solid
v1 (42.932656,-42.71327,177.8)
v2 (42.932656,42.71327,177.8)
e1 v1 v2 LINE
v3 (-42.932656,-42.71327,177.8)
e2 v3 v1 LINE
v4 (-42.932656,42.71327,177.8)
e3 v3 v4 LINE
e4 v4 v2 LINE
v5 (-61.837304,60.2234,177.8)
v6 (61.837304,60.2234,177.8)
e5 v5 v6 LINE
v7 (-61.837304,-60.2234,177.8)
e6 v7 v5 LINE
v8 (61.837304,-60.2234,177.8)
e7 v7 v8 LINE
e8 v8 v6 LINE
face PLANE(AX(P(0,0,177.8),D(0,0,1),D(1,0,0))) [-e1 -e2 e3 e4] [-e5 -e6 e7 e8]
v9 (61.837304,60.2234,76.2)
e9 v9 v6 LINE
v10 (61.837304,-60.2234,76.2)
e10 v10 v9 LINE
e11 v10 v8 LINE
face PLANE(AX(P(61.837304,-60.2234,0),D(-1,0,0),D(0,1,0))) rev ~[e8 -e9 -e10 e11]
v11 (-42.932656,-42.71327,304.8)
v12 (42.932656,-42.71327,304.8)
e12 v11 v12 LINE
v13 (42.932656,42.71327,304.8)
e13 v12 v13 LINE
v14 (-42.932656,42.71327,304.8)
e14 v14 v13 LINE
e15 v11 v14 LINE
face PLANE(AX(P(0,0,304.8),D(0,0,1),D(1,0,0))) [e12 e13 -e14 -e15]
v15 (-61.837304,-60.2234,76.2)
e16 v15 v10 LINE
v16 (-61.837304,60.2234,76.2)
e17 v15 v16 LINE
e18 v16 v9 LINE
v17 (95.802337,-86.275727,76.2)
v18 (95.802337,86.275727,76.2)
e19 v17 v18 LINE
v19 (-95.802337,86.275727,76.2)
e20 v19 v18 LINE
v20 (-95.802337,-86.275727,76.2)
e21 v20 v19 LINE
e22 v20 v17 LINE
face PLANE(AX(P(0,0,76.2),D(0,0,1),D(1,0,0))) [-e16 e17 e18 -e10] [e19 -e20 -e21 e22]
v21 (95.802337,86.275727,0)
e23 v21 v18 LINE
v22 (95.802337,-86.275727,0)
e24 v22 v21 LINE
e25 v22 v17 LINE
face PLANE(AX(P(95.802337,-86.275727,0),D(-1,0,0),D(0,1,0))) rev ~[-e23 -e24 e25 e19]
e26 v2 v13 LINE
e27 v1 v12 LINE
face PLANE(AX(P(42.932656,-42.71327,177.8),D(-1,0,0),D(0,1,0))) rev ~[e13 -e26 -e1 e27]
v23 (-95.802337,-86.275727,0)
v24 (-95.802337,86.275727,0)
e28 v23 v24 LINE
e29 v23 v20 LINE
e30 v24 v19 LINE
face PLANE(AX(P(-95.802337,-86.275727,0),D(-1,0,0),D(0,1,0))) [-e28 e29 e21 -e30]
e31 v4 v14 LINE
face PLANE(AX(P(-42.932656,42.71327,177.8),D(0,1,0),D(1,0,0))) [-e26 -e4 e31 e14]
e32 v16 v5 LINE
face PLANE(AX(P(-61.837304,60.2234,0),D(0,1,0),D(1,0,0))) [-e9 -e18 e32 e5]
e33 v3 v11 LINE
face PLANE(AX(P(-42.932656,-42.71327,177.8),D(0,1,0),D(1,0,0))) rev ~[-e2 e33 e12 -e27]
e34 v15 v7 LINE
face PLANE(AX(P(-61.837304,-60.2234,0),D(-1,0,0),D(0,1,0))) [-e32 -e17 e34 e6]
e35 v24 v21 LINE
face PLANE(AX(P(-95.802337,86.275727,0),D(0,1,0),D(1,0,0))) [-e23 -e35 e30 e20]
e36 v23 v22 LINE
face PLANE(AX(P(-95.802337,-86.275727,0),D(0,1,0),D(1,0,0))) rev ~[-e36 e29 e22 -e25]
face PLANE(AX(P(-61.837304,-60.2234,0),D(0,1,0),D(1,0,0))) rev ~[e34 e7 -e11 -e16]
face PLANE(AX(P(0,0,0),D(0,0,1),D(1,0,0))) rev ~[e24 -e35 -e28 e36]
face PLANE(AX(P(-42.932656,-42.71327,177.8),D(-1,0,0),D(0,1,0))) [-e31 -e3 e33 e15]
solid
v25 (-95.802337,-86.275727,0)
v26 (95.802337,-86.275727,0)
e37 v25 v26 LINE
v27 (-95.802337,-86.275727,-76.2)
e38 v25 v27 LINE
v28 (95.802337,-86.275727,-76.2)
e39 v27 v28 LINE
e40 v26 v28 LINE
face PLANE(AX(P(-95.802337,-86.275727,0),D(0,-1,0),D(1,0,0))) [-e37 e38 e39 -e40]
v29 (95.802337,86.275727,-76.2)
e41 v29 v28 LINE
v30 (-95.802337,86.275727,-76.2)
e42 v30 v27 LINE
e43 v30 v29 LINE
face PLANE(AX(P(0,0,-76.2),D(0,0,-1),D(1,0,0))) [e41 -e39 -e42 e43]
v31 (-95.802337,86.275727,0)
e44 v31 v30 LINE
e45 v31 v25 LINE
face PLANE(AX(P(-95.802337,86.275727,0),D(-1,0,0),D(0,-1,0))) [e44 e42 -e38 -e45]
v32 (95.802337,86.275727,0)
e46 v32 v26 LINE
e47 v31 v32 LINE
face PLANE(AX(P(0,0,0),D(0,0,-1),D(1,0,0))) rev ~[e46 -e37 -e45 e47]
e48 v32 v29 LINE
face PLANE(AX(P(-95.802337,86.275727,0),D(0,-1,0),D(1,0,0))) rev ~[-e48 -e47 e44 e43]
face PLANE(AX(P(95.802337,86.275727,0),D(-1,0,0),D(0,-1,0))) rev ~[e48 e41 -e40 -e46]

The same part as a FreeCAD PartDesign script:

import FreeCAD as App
import Part
import Sketcher
from FreeCAD import Vector
Q = App.Units.Quantity


def add_polygon(sketch, points):
    """Adds a closed chain of lines whose ends are joined by coincident constraints."""
    first, n = sketch.GeometryCount, len(points)
    for a, b in zip(points, points[1:] + points[:1]):
        sketch.addGeometry(Part.LineSegment(App.Vector(*a, 0), App.Vector(*b, 0)), False)
    for i in range(n):
        sketch.addConstraint(Sketcher.Constraint("Coincident", first + i, 2, first + (i + 1) % n, 1))

doc = App.newDocument("Part")
params = doc.addObject("Spreadsheet::Sheet", "Params")
for row, (alias, value) in enumerate([
    ("sketch1_height", "4.742 in"),
    ("pad1_length", "7 in"),
    ("pad2_length", "5 in"),
    ("pad3_length", "3 in"),
    ("pad4_length", "3 in"),
], start=1):
    params.set(f"A{row}", alias)
    params.set(f"B{row}", "=" + value)
    params.setAlias(f"B{row}", alias)

body = doc.addObject("PartDesign::Body", "Body")

sketch1 = body.newObject("Sketcher::SketchObject", "Sketch")
sketch1.AttachmentSupport = (doc.getObject("XY_Plane"), [""])
sketch1.MapMode = "FlatFace"
add_polygon(sketch1, [(-62, 60), (-62, -60), (62, -60), (62, 60)])
sketch1.addConstraint(Sketcher.Constraint("Vertical", 0))
sketch1.addConstraint(Sketcher.Constraint("Horizontal", 1))
sketch1.addConstraint(Sketcher.Constraint("Vertical", 2))
sketch1.addConstraint(Sketcher.Constraint("Horizontal", 3))
sketch1.addConstraint(Sketcher.Constraint("Symmetric", 0, 2, 2, 2, -1, 1))
sketch1.addConstraint(Sketcher.Constraint("DistanceY", 0, 2, 0, 1, Q("4.742 in")))
sketch1.addConstraint(Sketcher.Constraint("DistanceX", 1, 1, 1, 2, Q("123.674608 mm")))
sketch1.setExpression("Constraints[9]", "Params.sketch1_height")
pad1 = body.newObject("PartDesign::Pad", "Pad")
pad1.Profile = sketch1
pad1.setExpression("Length", "Params.pad1_length")

sketch2 = body.newObject("Sketcher::SketchObject", "Sketch001")
sketch2.AttachmentSupport = (doc.getObject("XY_Plane"), [""])
sketch2.MapMode = "FlatFace"
sketch2.AttachmentOffset = App.Placement(Vector(0, 0, 7 * 25.4), App.Rotation())
add_polygon(sketch2, [(-43, 43), (-43, -43), (43, -43), (43, 43)])
sketch2.addConstraint(Sketcher.Constraint("Vertical", 0))
sketch2.addConstraint(Sketcher.Constraint("Horizontal", 1))
sketch2.addConstraint(Sketcher.Constraint("Vertical", 2))
sketch2.addConstraint(Sketcher.Constraint("Horizontal", 3))
sketch2.addConstraint(Sketcher.Constraint("Symmetric", 0, 2, 2, 2, -1, 1))
sketch2.addConstraint(Sketcher.Constraint("DistanceY", 0, 2, 0, 1, Q("85.42654 mm")))
sketch2.addConstraint(Sketcher.Constraint("DistanceX", 1, 1, 1, 2, Q("85.865312 mm")))
pad2 = body.newObject("PartDesign::Pad", "Pad001")
pad2.Profile = sketch2
pad2.setExpression("Length", "Params.pad2_length")

sketch3 = body.newObject("Sketcher::SketchObject", "Sketch002")
sketch3.AttachmentSupport = (doc.getObject("XY_Plane"), [""])
sketch3.MapMode = "FlatFace"
add_polygon(sketch3, [(-96, 86), (-96, -86), (96, -86), (96, 86)])
sketch3.addConstraint(Sketcher.Constraint("Vertical", 0))
sketch3.addConstraint(Sketcher.Constraint("Horizontal", 1))
sketch3.addConstraint(Sketcher.Constraint("Vertical", 2))
sketch3.addConstraint(Sketcher.Constraint("Horizontal", 3))
sketch3.addConstraint(Sketcher.Constraint("Symmetric", 0, 2, 2, 2, -1, 1))
sketch3.addConstraint(Sketcher.Constraint("DistanceX", 1, 1, 1, 2, Q("191.604674 mm")))
sketch3.addConstraint(Sketcher.Constraint("DistanceY", 0, 2, 0, 1, Q("172.551454 mm")))
pad3 = body.newObject("PartDesign::Pad", "Pad002")
pad3.Profile = sketch3
pad3.setExpression("Length", "Params.pad3_length")
body2 = doc.addObject("PartDesign::Body", "Body001")

sketch4 = body2.newObject("Sketcher::SketchObject", "Sketch003")
sketch4.AttachmentSupport = (doc.getObject("XY_Plane001"), [""])
sketch4.MapMode = "FlatFace"
add_polygon(sketch4, [(-96, -86), (-96, 86), (96, 86), (96, -86)])
sketch4.addConstraint(Sketcher.Constraint("Vertical", 0))
sketch4.addConstraint(Sketcher.Constraint("Horizontal", 1))
sketch4.addConstraint(Sketcher.Constraint("Vertical", 2))
sketch4.addConstraint(Sketcher.Constraint("Horizontal", 3))
sketch4.addConstraint(Sketcher.Constraint("Symmetric", 0, 2, 2, 2, -1, 1))
sketch4.addConstraint(Sketcher.Constraint("DistanceX", 1, 1, 1, 2, Q("191.604674 mm")))
sketch4.addConstraint(Sketcher.Constraint("DistanceY", 0, 1, 0, 2, Q("172.551454 mm")))
pad4 = body2.newObject("PartDesign::Pad", "Pad003")
pad4.Profile = sketch4
pad4.setExpression("Length", "Params.pad4_length")
pad4.Reversed = True

doc.recompute()
